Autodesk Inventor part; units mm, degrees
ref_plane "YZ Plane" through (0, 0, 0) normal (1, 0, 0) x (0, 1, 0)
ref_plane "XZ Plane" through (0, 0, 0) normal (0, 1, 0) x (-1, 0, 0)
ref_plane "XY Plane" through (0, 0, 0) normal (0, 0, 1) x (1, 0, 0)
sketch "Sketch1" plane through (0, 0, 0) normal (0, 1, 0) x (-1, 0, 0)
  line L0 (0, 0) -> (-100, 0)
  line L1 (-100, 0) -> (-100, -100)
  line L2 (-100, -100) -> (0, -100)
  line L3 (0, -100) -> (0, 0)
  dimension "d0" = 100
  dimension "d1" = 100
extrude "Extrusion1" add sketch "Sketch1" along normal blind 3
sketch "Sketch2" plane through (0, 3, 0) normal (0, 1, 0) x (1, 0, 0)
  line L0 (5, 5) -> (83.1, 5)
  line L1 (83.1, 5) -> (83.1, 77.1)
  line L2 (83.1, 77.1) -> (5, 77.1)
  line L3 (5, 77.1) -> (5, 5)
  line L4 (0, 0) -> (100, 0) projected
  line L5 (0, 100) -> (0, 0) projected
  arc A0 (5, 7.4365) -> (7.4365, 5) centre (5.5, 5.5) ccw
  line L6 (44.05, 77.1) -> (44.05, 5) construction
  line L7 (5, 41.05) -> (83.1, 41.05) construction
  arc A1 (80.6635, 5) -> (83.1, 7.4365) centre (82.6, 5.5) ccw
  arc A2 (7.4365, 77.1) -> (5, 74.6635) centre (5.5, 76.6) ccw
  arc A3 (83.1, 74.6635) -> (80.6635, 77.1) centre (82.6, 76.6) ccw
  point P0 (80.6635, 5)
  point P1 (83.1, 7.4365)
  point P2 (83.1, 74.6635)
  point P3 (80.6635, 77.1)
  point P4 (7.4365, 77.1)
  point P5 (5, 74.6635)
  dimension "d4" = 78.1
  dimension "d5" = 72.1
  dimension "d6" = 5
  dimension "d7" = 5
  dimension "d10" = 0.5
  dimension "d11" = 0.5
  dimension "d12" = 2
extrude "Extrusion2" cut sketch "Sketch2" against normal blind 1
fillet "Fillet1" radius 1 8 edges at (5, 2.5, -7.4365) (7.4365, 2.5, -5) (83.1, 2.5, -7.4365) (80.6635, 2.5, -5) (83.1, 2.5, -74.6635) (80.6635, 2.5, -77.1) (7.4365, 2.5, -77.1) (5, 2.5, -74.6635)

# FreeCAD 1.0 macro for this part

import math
import FreeCAD as App
import Part
import Sketcher

V = App.Vector


def edges_at(feature, points):
    """Names of the edges that pass closest to the given points."""
    edges = feature.Shape.Edges
    near = lambda p: min(range(len(edges)), key=lambda i: edges[i].distToShape(Part.Vertex(*p))[0])
    return sorted({f"Edge{near(p) + 1}" for p in points})

doc = App.newDocument("Part")
body = doc.addObject("PartDesign::Body", "Body")

sketch1 = body.newObject("Sketcher::SketchObject", "Sketch")
sketch1.AttachmentSupport = (doc.getObject("XZ_Plane"), [""])
sketch1.MapMode = "FlatFace"
sketch1.addGeometry([
    Part.LineSegment(V(0, -100, 0), V(0, 0, 0)),
    Part.LineSegment(V(0, 0, 0), V(100, 0, 0)),
    Part.LineSegment(V(100, 0, 0), V(100, -100, 0)),
    Part.LineSegment(V(100, -100, 0), V(0, -100, 0)),
], False)
sketch1.addConstraint([
    Sketcher.Constraint("Coincident", 0, 2, 1, 1),
    Sketcher.Constraint("Coincident", 1, 2, 2, 1),
    Sketcher.Constraint("Coincident", 2, 2, 3, 1),
    Sketcher.Constraint("Coincident", 3, 2, 0, 1),
    Sketcher.Constraint("Vertical", 0),
    Sketcher.Constraint("Horizontal", 1),
    Sketcher.Constraint("Vertical", 2),
    Sketcher.Constraint("Horizontal", 3),
    Sketcher.Constraint("Coincident", 0, 2, -1, 1),
    Sketcher.Constraint("Equal", 3, 0),
    Sketcher.Constraint("DistanceX", 1, 1, 1, 2, 100.0),
])
pad1 = body.newObject("PartDesign::Pad", "Pad")
pad1.Profile = sketch1
pad1.Length = 3
pad1.Reversed = True

sketch2 = body.newObject("Sketcher::SketchObject", "Sketch001")
sketch2.AttachmentSupport = (doc.getObject("XZ_Plane"), [""])
sketch2.MapMode = "FlatFace"
sketch2.AttachmentOffset = App.Placement(V(0, 0, -3), App.Rotation())
sketch2.addGeometry([
    Part.LineSegment(V(5, -74.6635, 0), V(5, -7.4365, 0)),
    Part.ArcOfCircle(Part.Circle(V(5.5, -5.5, 0), V(0, 0, 1), 2.000008), math.radians(14.477453), math.radians(255.522547)),
    Part.LineSegment(V(7.4365, -5, 0), V(80.6635, -5, 0)),
    Part.ArcOfCircle(Part.Circle(V(82.6, -5.5, 0), V(0, 0, 1), 2.000008), math.radians(-75.522547), math.radians(165.522547)),
    Part.LineSegment(V(83.1, -7.4365, 0), V(83.1, -74.6635, 0)),
    Part.ArcOfCircle(Part.Circle(V(82.6, -76.6, 0), V(0, 0, 1), 2.000008), math.radians(-165.522547), math.radians(75.522547)),
    Part.LineSegment(V(80.6635, -77.1, 0), V(7.4365, -77.1, 0)),
    Part.ArcOfCircle(Part.Circle(V(5.5, -76.6, 0), V(0, 0, 1), 2.000008), math.radians(104.477453), math.radians(345.522547)),
], False)
sketch2.addConstraint([
    Sketcher.Constraint("Coincident", 0, 2, 1, 2),
    Sketcher.Constraint("Coincident", 1, 1, 2, 1),
    Sketcher.Constraint("Coincident", 2, 2, 3, 2),
    Sketcher.Constraint("Coincident", 3, 1, 4, 1),
    Sketcher.Constraint("Coincident", 4, 2, 5, 2),
    Sketcher.Constraint("Coincident", 5, 1, 6, 1),
    Sketcher.Constraint("Coincident", 6, 2, 7, 2),
    Sketcher.Constraint("Coincident", 7, 1, 0, 1),
    Sketcher.Constraint("Vertical", 0),
    Sketcher.Constraint("Horizontal", 2),
    Sketcher.Constraint("Vertical", 4),
    Sketcher.Constraint("Horizontal", 6),
    Sketcher.Constraint("Equal", 1, 3),
    Sketcher.Constraint("Equal", 3, 5),
    Sketcher.Constraint("Equal", 5, 7),
    Sketcher.Constraint("Horizontal", 1, 3, 3, 3),
    Sketcher.Constraint("Horizontal", 5, 3, 7, 3),
    Sketcher.Constraint("Horizontal", 0, 2, 3, 1),
    Sketcher.Constraint("Horizontal", 4, 2, 7, 1),
    Sketcher.Constraint("Vertical", 3, 3, 5, 3),
    Sketcher.Constraint("Vertical", 2, 2, 5, 1),
    Sketcher.Constraint("Radius", 1, 2.0),
    Sketcher.Constraint("DistanceX", -1, 1, 0, 2, 5.0),
    Sketcher.Constraint("DistanceY", 1, 1, -1, 1, 5.0),
    Sketcher.Constraint("DistanceX", 0, 2, 1, 3, 0.5),
    Sketcher.Constraint("DistanceY", 1, 3, 1, 1, 0.5),
    Sketcher.Constraint("DistanceY", 5, 1, 2, 2, 72.1),
    Sketcher.Constraint("DistanceX", -1, 1, 3, 3, 82.6),
])
pocket1 = body.newObject("PartDesign::Pocket", "Pocket")
pocket1.Profile = sketch2
pocket1.Length = 1
pocket1.Reversed = True
doc.recompute()

fillet = body.newObject("PartDesign::Fillet", "Fillet")
fillet.Base = (pocket1, edges_at(pocket1, [
    (5, 2.5, -7.436),
    (7.436, 2.5, -5),
    (83.1, 2.5, -7.436),
    (80.663, 2.5, -5),
    (83.1, 2.5, -74.663),
    (80.663, 2.5, -77.1),
    (7.436, 2.5, -77.1),
    (5, 2.5, -74.663),
]))
fillet.Radius = 1

doc.recompute()
